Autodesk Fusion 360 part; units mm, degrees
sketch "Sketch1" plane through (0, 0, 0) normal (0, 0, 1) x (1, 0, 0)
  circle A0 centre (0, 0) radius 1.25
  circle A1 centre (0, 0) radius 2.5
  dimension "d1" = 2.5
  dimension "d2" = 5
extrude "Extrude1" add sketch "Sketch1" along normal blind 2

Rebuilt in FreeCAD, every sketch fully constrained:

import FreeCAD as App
import Part
import Sketcher
from FreeCAD import Vector
Q = App.Units.Quantity

doc = App.newDocument("Part")
params = doc.addObject("Spreadsheet::Sheet", "Params")
for row, (alias, value) in enumerate([
    ("sketch1_diameter", "5 mm"),
    ("sketch1_diameter2", "2.5 mm"),
    ("pad1_length", "2 mm"),
], start=1):
    params.set(f"A{row}", alias)
    params.set(f"B{row}", "=" + value)
    params.setAlias(f"B{row}", alias)

body = doc.addObject("PartDesign::Body", "Body")

# Sketch on XY plane
sketch1 = body.newObject("Sketcher::SketchObject", "Sketch")
sketch1.AttachmentSupport = (doc.getObject("XY_Plane"), [""])
sketch1.MapMode = "FlatFace"
sketch1.addGeometry(Part.Circle(Vector(0, 0, 0), Vector(0, 0, 1), 2.5), False)
sketch1.addGeometry(Part.Circle(Vector(0, 0, 0), Vector(0, 0, 1), 1.2), False)
sketch1.addConstraint(Sketcher.Constraint("Coincident", 0, 3, -1, 1))
sketch1.addConstraint(Sketcher.Constraint("Coincident", 1, 3, -1, 1))
sketch1.addConstraint(Sketcher.Constraint("Diameter", 0, Q("5 mm")))
sketch1.addConstraint(Sketcher.Constraint("Diameter", 1, Q("2.5 mm")))
sketch1.setExpression("Constraints[2]", "Params.sketch1_diameter")
sketch1.setExpression("Constraints[3]", "Params.sketch1_diameter2")
pad1 = body.newObject("PartDesign::Pad", "Pad")
pad1.Profile = sketch1
pad1.setExpression("Length", "Params.pad1_length")

doc.recompute()
